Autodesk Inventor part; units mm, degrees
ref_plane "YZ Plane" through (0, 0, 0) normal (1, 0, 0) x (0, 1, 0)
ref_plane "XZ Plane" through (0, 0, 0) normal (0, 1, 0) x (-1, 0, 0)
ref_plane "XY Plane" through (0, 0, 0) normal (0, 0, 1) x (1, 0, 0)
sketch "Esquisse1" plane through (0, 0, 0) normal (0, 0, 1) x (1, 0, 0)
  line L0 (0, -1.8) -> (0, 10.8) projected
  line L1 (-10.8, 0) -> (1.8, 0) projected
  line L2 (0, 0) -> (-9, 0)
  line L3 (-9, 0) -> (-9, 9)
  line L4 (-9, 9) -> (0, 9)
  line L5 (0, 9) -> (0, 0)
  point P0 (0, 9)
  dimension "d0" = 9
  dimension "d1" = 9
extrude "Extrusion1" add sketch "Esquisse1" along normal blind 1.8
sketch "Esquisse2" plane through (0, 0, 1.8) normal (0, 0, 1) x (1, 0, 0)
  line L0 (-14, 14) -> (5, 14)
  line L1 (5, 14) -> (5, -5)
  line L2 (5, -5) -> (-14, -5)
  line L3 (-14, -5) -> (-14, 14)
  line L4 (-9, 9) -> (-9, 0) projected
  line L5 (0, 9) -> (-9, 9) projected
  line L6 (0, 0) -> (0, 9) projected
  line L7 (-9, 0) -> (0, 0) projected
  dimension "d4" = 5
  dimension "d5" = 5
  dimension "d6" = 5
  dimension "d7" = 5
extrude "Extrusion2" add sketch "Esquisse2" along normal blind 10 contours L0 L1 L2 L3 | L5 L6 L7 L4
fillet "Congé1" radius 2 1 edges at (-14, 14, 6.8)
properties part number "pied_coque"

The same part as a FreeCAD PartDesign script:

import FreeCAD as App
import Part
import Sketcher
from FreeCAD import Vector
Q = App.Units.Quantity


def edges_at(feature, points):
    """Names of the edges that pass closest to the given points."""
    edges = feature.Shape.Edges
    near = lambda p: min(range(len(edges)), key=lambda i: edges[i].distToShape(Part.Vertex(*p))[0])
    return sorted({f"Edge{near(p) + 1}" for p in points})


def add_polygon(sketch, points):
    """Adds a closed chain of lines whose ends are joined by coincident constraints."""
    first, n = sketch.GeometryCount, len(points)
    for a, b in zip(points, points[1:] + points[:1]):
        sketch.addGeometry(Part.LineSegment(App.Vector(*a, 0), App.Vector(*b, 0)), False)
    for i in range(n):
        sketch.addConstraint(Sketcher.Constraint("Coincident", first + i, 2, first + (i + 1) % n, 1))

doc = App.newDocument("Part")
body = doc.addObject("PartDesign::Body", "Body")

# Sketch on XY plane
sketch1 = body.newObject("Sketcher::SketchObject", "Sketch")
sketch1.AttachmentSupport = (doc.getObject("XY_Plane"), [""])
sketch1.MapMode = "FlatFace"
add_polygon(sketch1, [(-9, 0), (0, 0), (0, 9), (-9, 9)])  # lines 0-3
sketch1.addConstraint([
    Sketcher.Constraint("Horizontal", 0),
    Sketcher.Constraint("Vertical", 1),
    Sketcher.Constraint("Horizontal", 2),
    Sketcher.Constraint("Vertical", 3),
    Sketcher.Constraint("Coincident", 0, 2, -1, 1),
    Sketcher.Constraint("Equal", 2, 1),
    Sketcher.Constraint("DistanceX", 0, 1, 0, 2, Q("9 mm")),
])
pad1 = body.newObject("PartDesign::Pad", "Pad")
pad1.Profile = sketch1
pad1.Length = 1.8

# Sketch on XY plane
sketch2 = body.newObject("Sketcher::SketchObject", "Sketch001")
sketch2.AttachmentSupport = (doc.getObject("XY_Plane"), [""])
sketch2.MapMode = "FlatFace"
sketch2.AttachmentOffset = App.Placement(Vector(0, 0, 1.8), App.Rotation())
add_polygon(sketch2, [(5, 14), (-14, 14), (-14, -5), (5, -5)])  # lines 0-3
sketch2.addConstraint([
    Sketcher.Constraint("Horizontal", 0),
    Sketcher.Constraint("Vertical", 1),
    Sketcher.Constraint("Horizontal", 2),
    Sketcher.Constraint("Vertical", 3),
    Sketcher.Constraint("Equal", 2, 1),
    Sketcher.Constraint("DistanceY", 1, 2, -1, 1, Q("5 mm")),
    Sketcher.Constraint("DistanceX", -1, 1, 2, 2, Q("5 mm")),
    Sketcher.Constraint("DistanceX", 0, 2, 0, 1, Q("19 mm")),
])
pad2 = body.newObject("PartDesign::Pad", "Pad001")
pad2.Profile = sketch2
pad2.Length = 10
doc.recompute()

fillet = body.newObject("PartDesign::Fillet", "Fillet")
fillet.Base = (pad2, edges_at(pad2, [(-14, 14, 6.8)]))
fillet.Radius = 2

doc.recompute()
